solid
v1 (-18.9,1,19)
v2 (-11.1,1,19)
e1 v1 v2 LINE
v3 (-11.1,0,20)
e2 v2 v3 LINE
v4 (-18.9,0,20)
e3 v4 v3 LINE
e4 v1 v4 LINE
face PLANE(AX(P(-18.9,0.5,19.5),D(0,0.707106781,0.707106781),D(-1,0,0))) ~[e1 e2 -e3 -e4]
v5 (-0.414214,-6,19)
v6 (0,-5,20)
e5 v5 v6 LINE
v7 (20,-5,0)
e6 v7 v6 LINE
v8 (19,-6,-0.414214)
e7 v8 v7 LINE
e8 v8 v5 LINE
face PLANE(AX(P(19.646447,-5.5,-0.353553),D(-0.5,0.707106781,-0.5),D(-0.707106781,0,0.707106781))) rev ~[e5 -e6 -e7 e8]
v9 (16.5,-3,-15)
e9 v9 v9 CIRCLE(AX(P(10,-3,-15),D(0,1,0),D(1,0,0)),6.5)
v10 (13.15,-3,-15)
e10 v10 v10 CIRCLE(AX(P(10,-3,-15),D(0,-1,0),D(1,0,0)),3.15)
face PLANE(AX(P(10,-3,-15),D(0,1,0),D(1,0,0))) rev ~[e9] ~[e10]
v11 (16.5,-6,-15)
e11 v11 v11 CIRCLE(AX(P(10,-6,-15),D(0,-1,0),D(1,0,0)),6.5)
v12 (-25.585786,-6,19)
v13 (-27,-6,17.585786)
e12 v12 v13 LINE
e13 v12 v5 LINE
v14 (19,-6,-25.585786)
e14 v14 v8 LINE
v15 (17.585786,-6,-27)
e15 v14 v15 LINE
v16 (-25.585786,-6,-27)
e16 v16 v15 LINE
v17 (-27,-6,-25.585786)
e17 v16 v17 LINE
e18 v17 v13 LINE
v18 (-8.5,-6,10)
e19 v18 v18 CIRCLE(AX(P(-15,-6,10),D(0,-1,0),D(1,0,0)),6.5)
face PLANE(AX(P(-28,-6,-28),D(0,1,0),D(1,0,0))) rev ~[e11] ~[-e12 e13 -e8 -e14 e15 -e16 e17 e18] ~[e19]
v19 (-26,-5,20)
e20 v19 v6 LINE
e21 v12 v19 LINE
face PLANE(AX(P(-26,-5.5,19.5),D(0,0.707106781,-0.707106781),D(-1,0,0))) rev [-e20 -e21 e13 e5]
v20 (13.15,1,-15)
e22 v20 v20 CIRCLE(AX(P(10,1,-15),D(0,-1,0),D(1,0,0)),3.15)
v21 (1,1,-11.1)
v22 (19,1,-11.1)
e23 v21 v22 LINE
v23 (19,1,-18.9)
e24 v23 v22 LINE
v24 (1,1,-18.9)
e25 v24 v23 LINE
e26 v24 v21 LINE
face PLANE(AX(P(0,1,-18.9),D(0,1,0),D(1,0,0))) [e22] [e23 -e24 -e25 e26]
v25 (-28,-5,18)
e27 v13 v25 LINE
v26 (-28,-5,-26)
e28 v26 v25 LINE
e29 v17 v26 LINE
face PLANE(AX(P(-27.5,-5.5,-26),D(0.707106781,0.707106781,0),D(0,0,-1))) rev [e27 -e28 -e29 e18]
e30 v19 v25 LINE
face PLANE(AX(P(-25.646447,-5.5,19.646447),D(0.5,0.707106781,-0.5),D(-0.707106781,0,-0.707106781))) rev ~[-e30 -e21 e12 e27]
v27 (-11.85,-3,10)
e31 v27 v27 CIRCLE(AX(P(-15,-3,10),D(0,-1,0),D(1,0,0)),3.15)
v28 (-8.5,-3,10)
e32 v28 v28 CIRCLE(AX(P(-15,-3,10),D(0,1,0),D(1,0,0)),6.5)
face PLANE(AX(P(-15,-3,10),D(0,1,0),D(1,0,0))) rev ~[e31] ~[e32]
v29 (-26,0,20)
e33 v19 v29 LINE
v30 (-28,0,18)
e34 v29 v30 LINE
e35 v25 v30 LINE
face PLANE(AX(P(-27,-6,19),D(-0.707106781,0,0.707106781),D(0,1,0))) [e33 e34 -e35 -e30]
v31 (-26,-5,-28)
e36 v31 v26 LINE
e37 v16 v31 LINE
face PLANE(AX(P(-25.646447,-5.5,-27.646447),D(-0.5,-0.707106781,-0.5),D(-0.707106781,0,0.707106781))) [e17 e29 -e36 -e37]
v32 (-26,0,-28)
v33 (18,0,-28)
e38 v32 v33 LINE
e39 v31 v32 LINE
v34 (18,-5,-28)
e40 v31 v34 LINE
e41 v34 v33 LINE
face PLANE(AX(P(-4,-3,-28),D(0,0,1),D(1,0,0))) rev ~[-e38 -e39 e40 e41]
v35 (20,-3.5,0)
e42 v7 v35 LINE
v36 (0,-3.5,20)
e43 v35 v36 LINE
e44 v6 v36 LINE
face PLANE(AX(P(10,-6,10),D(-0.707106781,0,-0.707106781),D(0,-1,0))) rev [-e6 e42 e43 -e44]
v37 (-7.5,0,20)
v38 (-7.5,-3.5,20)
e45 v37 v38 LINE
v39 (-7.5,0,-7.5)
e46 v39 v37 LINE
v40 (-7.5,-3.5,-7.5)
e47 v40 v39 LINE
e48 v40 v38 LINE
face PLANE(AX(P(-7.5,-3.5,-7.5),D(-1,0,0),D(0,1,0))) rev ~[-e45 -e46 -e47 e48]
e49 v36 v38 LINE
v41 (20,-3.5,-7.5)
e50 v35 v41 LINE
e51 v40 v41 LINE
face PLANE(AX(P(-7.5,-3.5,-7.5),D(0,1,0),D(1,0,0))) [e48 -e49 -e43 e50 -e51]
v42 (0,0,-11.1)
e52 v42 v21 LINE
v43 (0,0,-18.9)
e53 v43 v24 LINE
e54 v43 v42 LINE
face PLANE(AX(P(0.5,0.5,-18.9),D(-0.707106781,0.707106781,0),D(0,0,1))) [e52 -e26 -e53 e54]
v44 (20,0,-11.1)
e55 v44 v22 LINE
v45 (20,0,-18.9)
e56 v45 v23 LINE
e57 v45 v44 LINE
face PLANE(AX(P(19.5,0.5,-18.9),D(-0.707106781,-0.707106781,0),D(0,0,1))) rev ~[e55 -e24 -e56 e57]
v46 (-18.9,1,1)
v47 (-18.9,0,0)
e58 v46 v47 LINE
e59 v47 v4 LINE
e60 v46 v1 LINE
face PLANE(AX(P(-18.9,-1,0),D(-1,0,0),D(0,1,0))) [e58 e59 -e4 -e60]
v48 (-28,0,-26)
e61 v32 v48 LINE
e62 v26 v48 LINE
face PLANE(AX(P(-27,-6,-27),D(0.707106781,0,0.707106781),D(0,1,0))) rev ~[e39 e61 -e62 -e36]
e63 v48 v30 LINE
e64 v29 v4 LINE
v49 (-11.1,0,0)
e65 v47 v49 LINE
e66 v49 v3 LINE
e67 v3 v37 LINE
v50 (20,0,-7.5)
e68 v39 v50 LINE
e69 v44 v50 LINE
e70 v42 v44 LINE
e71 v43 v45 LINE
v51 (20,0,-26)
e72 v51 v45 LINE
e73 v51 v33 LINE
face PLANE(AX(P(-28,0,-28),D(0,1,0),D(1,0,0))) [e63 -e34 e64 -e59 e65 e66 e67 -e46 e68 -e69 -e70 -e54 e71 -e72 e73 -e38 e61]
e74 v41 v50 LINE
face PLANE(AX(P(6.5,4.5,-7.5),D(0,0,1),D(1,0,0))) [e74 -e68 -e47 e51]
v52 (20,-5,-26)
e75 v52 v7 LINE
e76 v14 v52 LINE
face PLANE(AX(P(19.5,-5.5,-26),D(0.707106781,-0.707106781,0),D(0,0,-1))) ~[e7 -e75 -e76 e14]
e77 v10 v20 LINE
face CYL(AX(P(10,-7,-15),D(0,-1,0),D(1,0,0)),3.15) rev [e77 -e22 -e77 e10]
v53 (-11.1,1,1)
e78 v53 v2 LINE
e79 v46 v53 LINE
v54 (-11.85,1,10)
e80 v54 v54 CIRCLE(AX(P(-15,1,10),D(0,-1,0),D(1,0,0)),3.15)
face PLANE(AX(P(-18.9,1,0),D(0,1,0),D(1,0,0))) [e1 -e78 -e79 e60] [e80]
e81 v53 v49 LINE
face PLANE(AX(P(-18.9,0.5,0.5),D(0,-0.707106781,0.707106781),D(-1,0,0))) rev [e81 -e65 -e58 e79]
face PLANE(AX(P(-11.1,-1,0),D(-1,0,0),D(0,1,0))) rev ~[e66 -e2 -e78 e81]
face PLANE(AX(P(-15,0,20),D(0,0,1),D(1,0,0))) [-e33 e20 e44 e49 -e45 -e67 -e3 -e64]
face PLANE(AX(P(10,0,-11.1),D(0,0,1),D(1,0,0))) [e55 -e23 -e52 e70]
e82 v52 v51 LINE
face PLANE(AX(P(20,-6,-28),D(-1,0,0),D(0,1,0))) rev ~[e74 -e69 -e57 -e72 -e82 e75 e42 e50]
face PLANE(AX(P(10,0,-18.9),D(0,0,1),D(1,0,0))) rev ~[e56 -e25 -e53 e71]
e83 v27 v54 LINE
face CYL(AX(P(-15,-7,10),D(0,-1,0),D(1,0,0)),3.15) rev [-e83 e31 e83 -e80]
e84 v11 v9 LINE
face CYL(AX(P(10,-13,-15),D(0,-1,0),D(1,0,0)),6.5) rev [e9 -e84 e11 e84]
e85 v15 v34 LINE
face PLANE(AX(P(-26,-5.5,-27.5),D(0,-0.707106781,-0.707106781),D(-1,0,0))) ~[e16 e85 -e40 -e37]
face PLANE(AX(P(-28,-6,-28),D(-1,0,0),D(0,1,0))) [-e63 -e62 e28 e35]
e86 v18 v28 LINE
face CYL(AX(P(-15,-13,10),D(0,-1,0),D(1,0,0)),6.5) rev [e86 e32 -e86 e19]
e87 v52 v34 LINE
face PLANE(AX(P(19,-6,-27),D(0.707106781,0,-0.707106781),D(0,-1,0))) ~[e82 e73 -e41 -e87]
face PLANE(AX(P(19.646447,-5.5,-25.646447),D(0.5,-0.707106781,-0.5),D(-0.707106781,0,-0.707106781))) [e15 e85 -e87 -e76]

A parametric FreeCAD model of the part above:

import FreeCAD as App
import Part
import Sketcher

V = App.Vector


def edges_at(feature, points):
    """Names of the edges that pass closest to the given points."""
    edges = feature.Shape.Edges
    near = lambda p: min(range(len(edges)), key=lambda i: edges[i].distToShape(Part.Vertex(*p))[0])
    return sorted({f"Edge{near(p) + 1}" for p in points})

doc = App.newDocument("Part")
body = doc.addObject("PartDesign::Body", "Body")

# Sketch on XY plane
sketch1 = body.newObject("Sketcher::SketchObject", "Sketch")
sketch1.AttachmentSupport = (doc.getObject("XY_Plane"), [""])
sketch1.MapMode = "FlatFace"
sketch1.AttachmentOffset = App.Placement(V(0, 0, -7.5), App.Rotation())
sketch1.addGeometry([
    Part.LineSegment(V(-8, 12, 0), V(-8, -4, 0)),
    Part.LineSegment(V(-8, -4, 0), V(20, -4, 0)),
    Part.LineSegment(V(20, -4, 0), V(20, 12, 0)),
    Part.LineSegment(V(20, 12, 0), V(-8, 12, 0)),
], False)
sketch1.addConstraint([
    Sketcher.Constraint("Coincident", 0, 2, 1, 1),
    Sketcher.Constraint("Coincident", 1, 2, 2, 1),
    Sketcher.Constraint("Coincident", 2, 2, 3, 1),
    Sketcher.Constraint("Coincident", 3, 2, 0, 1),
    Sketcher.Constraint("Vertical", 0),
    Sketcher.Constraint("Horizontal", 1),
    Sketcher.Constraint("Vertical", 2),
    Sketcher.Constraint("Horizontal", 3),
    Sketcher.Constraint("DistanceX", 1, 1, 1, 2, 28.0),
    Sketcher.Constraint("DistanceY", 0, 2, 0, 1, 16.0),
    Sketcher.Constraint("DistanceX", 0, 2, -1, 1, 7.5),
    Sketcher.Constraint("DistanceY", 0, 2, -1, 1, 3.5),
])
pad1 = body.newObject("PartDesign::Pad", "Pad")
pad1.Profile = sketch1
pad1.Length = 28
body2 = doc.addObject("PartDesign::Body", "Body001")

# Sketch on XZ plane
sketch2 = body2.newObject("Sketcher::SketchObject", "Sketch001")
sketch2.AttachmentSupport = (doc.getObject("XZ_Plane001"), [""])
sketch2.MapMode = "FlatFace"
sketch2.AttachmentOffset = App.Placement(V(0, 0, 16), App.Rotation())
sketch2.addGeometry(Part.Circle(V(10, -15, 0), V(0, 0, 1), 6), False)
sketch2.addConstraint([
    Sketcher.Constraint("Diameter", 0, 13.0),
    Sketcher.Constraint("DistanceX", -1, 1, 0, 3, 10.0),
    Sketcher.Constraint("DistanceY", 0, 3, -1, 1, 15.0),
])
pad2 = body2.newObject("PartDesign::Pad", "Pad001")
pad2.Profile = sketch2
pad2.Length = 10
pad2.Reversed = True
body3 = doc.addObject("PartDesign::Body", "Body002")
body3.AllowCompound = True

# Sketch on XZ plane
sketch3 = body3.newObject("Sketcher::SketchObject", "Sketch002")
sketch3.AttachmentSupport = (doc.getObject("XZ_Plane002"), [""])
sketch3.MapMode = "FlatFace"
sketch3.AttachmentOffset = App.Placement(V(0, 0, 16), App.Rotation())
sketch3.addGeometry(Part.Circle(V(-15, 10, 0), V(0, 0, 1), 6), False)
sketch3.addConstraint([
    Sketcher.Constraint("Diameter", 0, 13.0),
    Sketcher.Constraint("DistanceX", 0, 3, -1, 1, 15.0),
    Sketcher.Constraint("DistanceY", -1, 1, 0, 3, 10.0),
])
pad3 = body3.newObject("PartDesign::Pad", "Pad002")
pad3.Profile = sketch3
pad3.Length = 10
pad3.Reversed = True
doc.recompute()

boolean = body3.newObject("PartDesign::Boolean", "Boolean")
boolean.Type = "Fuse"
boolean.addObjects([body2])
body4 = doc.addObject("PartDesign::Body", "Body003")
body4.AllowCompound = True
doc.recompute()

body3.Placement = App.Placement(V(0, 3, 0), App.Rotation(V(0, 0, 1), 0))
boolean2 = body4.newObject("PartDesign::Boolean", "Boolean001")
boolean2.Type = "Fuse"
boolean2.addObjects([body3])
body5 = doc.addObject("PartDesign::Body", "Body004")

# Sketch on XZ plane
sketch4 = body5.newObject("Sketcher::SketchObject", "Sketch003")
sketch4.AttachmentSupport = (doc.getObject("XZ_Plane004"), [""])
sketch4.MapMode = "FlatFace"
sketch4.AttachmentOffset = App.Placement(V(0, 0, 7), App.Rotation())
sketch4.addGeometry(Part.Circle(V(10, -15, 0), V(0, 0, 1), 3.1), False)
sketch4.addConstraint([
    Sketcher.Constraint("Diameter", 0, 6.3),
    Sketcher.Constraint("DistanceX", -1, 1, 0, 3, 10.0),
    Sketcher.Constraint("DistanceY", 0, 3, -1, 1, 15.0),
])
pad4 = body5.newObject("PartDesign::Pad", "Pad003")
pad4.Profile = sketch4
pad4.Length = 10
pad4.Reversed = True
body6 = doc.addObject("PartDesign::Body", "Body005")
body6.AllowCompound = True

# Sketch on XZ plane
sketch5 = body6.newObject("Sketcher::SketchObject", "Sketch004")
sketch5.AttachmentSupport = (doc.getObject("XZ_Plane005"), [""])
sketch5.MapMode = "FlatFace"
sketch5.AttachmentOffset = App.Placement(V(0, 0, 7), App.Rotation())
sketch5.addGeometry(Part.Circle(V(-15, 10, 0), V(0, 0, 1), 3.1), False)
sketch5.addConstraint([
    Sketcher.Constraint("Diameter", 0, 6.3),
    Sketcher.Constraint("DistanceX", 0, 3, -1, 1, 15.0),
    Sketcher.Constraint("DistanceY", -1, 1, 0, 3, 10.0),
])
pad5 = body6.newObject("PartDesign::Pad", "Pad004")
pad5.Profile = sketch5
pad5.Length = 10
pad5.Reversed = True
doc.recompute()

boolean3 = body6.newObject("PartDesign::Boolean", "Boolean002")
boolean3.Type = "Fuse"
boolean3.addObjects([body5])
body7 = doc.addObject("PartDesign::Body", "Body006")

# Sketch on XY plane
sketch6 = body7.newObject("Sketcher::SketchObject", "Sketch005")
sketch6.AttachmentSupport = (doc.getObject("XY_Plane006"), [""])
sketch6.MapMode = "FlatFace"
sketch6.addGeometry([
    Part.LineSegment(V(-18.9, 1, 0), V(-18.9, -1, 0)),
    Part.LineSegment(V(-18.9, -1, 0), V(-11.1, -1, 0)),
    Part.LineSegment(V(-11.1, -1, 0), V(-11.1, 1, 0)),
    Part.LineSegment(V(-11.1, 1, 0), V(-18.9, 1, 0)),
], False)
sketch6.addConstraint([
    Sketcher.Constraint("Coincident", 0, 2, 1, 1),
    Sketcher.Constraint("Coincident", 1, 2, 2, 1),
    Sketcher.Constraint("Coincident", 2, 2, 3, 1),
    Sketcher.Constraint("Coincident", 3, 2, 0, 1),
    Sketcher.Constraint("Vertical", 0),
    Sketcher.Constraint("Horizontal", 1),
    Sketcher.Constraint("Vertical", 2),
    Sketcher.Constraint("Horizontal", 3),
    Sketcher.Constraint("DistanceY", 0, 2, 0, 1, 2.0),
    Sketcher.Constraint("DistanceX", 1, 1, 1, 2, 7.8),
    Sketcher.Constraint("DistanceY", 0, 2, -1, 1, 1.0),
    Sketcher.Constraint("DistanceX", 0, 2, -1, 1, 18.9),
])
pad6 = body7.newObject("PartDesign::Pad", "Pad005")
pad6.Profile = sketch6
pad6.Length = 20
doc.recompute()

chamfer = body7.newObject("PartDesign::Chamfer", "Chamfer")
chamfer.Base = (pad6, edges_at(pad6, [(-15, 1, 0), (-15, 1, 20)]))
chamfer.Size = 1
body8 = doc.addObject("PartDesign::Body", "Body007")
body8.AllowCompound = True

# Sketch on XY plane
sketch7 = body8.newObject("Sketcher::SketchObject", "Sketch006")
sketch7.AttachmentSupport = (doc.getObject("XY_Plane007"), [""])
sketch7.MapMode = "FlatFace"
sketch7.AttachmentOffset = App.Placement(V(0, 0, -18.9), App.Rotation())
sketch7.addGeometry([
    Part.LineSegment(V(0, 1, 0), V(0, -1, 0)),
    Part.LineSegment(V(0, -1, 0), V(20, -1, 0)),
    Part.LineSegment(V(20, -1, 0), V(20, 1, 0)),
    Part.LineSegment(V(20, 1, 0), V(0, 1, 0)),
], False)
sketch7.addConstraint([
    Sketcher.Constraint("Coincident", 0, 2, 1, 1),
    Sketcher.Constraint("Coincident", 1, 2, 2, 1),
    Sketcher.Constraint("Coincident", 2, 2, 3, 1),
    Sketcher.Constraint("Coincident", 3, 2, 0, 1),
    Sketcher.Constraint("Vertical", 0),
    Sketcher.Constraint("Horizontal", 1),
    Sketcher.Constraint("Vertical", 2),
    Sketcher.Constraint("Horizontal", 3),
    Sketcher.Constraint("Symmetric", 0, 2, 3, 2, -1, 1),
    Sketcher.Constraint("DistanceX", 1, 1, 1, 2, 20.0),
    Sketcher.Constraint("DistanceY", 0, 2, 0, 1, 2.0),
])
pad7 = body8.newObject("PartDesign::Pad", "Pad006")
pad7.Profile = sketch7
pad7.Length = 7.8
doc.recompute()

chamfer2 = body8.newObject("PartDesign::Chamfer", "Chamfer001")
chamfer2.Base = (pad7, edges_at(pad7, [(0, 1, -15), (20, 1, -15)]))
chamfer2.Size = 1
doc.recompute()

boolean4 = body8.newObject("PartDesign::Boolean", "Boolean003")
boolean4.Type = "Fuse"
boolean4.addObjects([body7])
body9 = doc.addObject("PartDesign::Body", "Body008")

# Sketch on XY plane
sketch8 = body9.newObject("Sketcher::SketchObject", "Sketch007")
sketch8.AttachmentSupport = (doc.getObject("XY_Plane008"), [""])
sketch8.MapMode = "FlatFace"
sketch8.AttachmentOffset = App.Placement(V(0, 0, -28), App.Rotation())
sketch8.addGeometry([
    Part.LineSegment(V(-28, 0, 0), V(-28, -6, 0)),
    Part.LineSegment(V(-28, -6, 0), V(20, -6, 0)),
    Part.LineSegment(V(20, -6, 0), V(20, 0, 0)),
    Part.LineSegment(V(20, 0, 0), V(-28, 0, 0)),
], False)
sketch8.addConstraint([
    Sketcher.Constraint("Coincident", 0, 2, 1, 1),
    Sketcher.Constraint("Coincident", 1, 2, 2, 1),
    Sketcher.Constraint("Coincident", 2, 2, 3, 1),
    Sketcher.Constraint("Coincident", 3, 2, 0, 1),
    Sketcher.Constraint("Vertical", 0),
    Sketcher.Constraint("Horizontal", 1),
    Sketcher.Constraint("Vertical", 2),
    Sketcher.Constraint("Horizontal", 3),
    Sketcher.Constraint("PointOnObject", 2, 2, -1),
    Sketcher.Constraint("DistanceX", 1, 1, 1, 2, 48.0),
    Sketcher.Constraint("DistanceY", 0, 2, 0, 1, 6.0),
    Sketcher.Constraint("DistanceX", 0, 2, -1, 1, 28.0),
])
pad8 = body9.newObject("PartDesign::Pad", "Pad007")
pad8.Profile = sketch8
pad8.Length = 48
doc.recompute()

chamfer3 = body9.newObject("PartDesign::Chamfer", "Chamfer002")
chamfer3.Base = (pad8, edges_at(pad8, [(20, -3, 20)]))
chamfer3.Size = 20
doc.recompute()

chamfer4 = body9.newObject("PartDesign::Chamfer", "Chamfer003")
chamfer4.Base = (chamfer3, edges_at(chamfer3, [(20, -3, -28), (-28, -3, -28), (-28, -3, 20)]))
chamfer4.Size = 2
doc.recompute()

chamfer5 = body9.newObject("PartDesign::Chamfer", "Chamfer004")
chamfer5.Base = (chamfer4, edges_at(chamfer4, [
    (20, -6, -13),
    (19, -6, -27),
    (10, -6, 10),
    (-4, -6, -28),
    (-13, -6, 20),
    (-27, -6, -27),
    (-27, -6, 19),
    (-28, -6, -4),
]))
chamfer5.Size = 1
doc.recompute()

boolean5 = body9.newObject("PartDesign::Boolean", "Boolean004")
boolean5.Type = "Fuse"
boolean5.addObjects([body8])
doc.recompute()

boolean6 = body9.newObject("PartDesign::Boolean", "Boolean005")
boolean6.Type = "Cut"
boolean6.addObjects([body6])
doc.recompute()

boolean7 = body9.newObject("PartDesign::Boolean", "Boolean006")
boolean7.Type = "Cut"
boolean7.addObjects([body4])
doc.recompute()

boolean8 = body9.newObject("PartDesign::Boolean", "Boolean007")
boolean8.Type = "Cut"
boolean8.addObjects([body])

doc.recompute()
